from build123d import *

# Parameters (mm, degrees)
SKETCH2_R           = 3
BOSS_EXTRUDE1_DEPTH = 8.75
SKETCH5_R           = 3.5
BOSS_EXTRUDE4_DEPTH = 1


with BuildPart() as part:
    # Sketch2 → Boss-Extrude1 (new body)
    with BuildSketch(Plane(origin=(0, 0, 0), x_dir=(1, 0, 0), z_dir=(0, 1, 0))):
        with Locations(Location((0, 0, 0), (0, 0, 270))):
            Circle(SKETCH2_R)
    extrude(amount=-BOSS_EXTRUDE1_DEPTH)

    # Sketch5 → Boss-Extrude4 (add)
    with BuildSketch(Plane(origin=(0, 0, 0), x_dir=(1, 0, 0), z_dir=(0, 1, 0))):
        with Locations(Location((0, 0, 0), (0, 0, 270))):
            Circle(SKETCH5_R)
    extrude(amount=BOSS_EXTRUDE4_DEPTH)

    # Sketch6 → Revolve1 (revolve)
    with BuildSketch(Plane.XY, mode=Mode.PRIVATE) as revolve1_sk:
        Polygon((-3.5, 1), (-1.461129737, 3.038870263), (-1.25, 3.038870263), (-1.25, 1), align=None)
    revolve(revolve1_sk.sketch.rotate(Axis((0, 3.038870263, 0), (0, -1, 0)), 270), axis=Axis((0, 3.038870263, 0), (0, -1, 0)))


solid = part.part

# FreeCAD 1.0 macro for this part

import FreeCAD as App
import Part
import Sketcher
Q = App.Units.Quantity


def add_polygon(sketch, points):
    """Adds a closed chain of lines whose ends are joined by coincident constraints."""
    first, n = sketch.GeometryCount, len(points)
    for a, b in zip(points, points[1:] + points[:1]):
        sketch.addGeometry(Part.LineSegment(App.Vector(*a, 0), App.Vector(*b, 0)), False)
    for i in range(n):
        sketch.addConstraint(Sketcher.Constraint("Coincident", first + i, 2, first + (i + 1) % n, 1))

doc = App.newDocument("Part")
body = doc.addObject("PartDesign::Body", "Body")

# Sketch on XZ plane
sketch1 = body.newObject("Sketcher::SketchObject", "Sketch")
sketch1.AttachmentSupport = (doc.getObject("XZ_Plane"), [""])
sketch1.MapMode = "FlatFace"
sketch1.addGeometry(Part.Circle(App.Vector(0, 0, 0), App.Vector(0, 0, 1), 3), False)
sketch1.addConstraint(Sketcher.Constraint("Coincident", 0, 3, -1, 1))
sketch1.addConstraint(Sketcher.Constraint("Diameter", 0, 6.0))
pad1 = body.newObject("PartDesign::Pad", "Pad")
pad1.Profile = sketch1
pad1.Length = 8.75

# Sketch on XZ plane
sketch2 = body.newObject("Sketcher::SketchObject", "Sketch001")
sketch2.AttachmentSupport = (doc.getObject("XZ_Plane"), [""])
sketch2.MapMode = "FlatFace"
sketch2.addGeometry(Part.Circle(App.Vector(0, 0, 0), App.Vector(0, 0, 1), 3.5), False)
sketch2.addConstraint(Sketcher.Constraint("Coincident", 0, 3, -1, 1))
sketch2.addConstraint(Sketcher.Constraint("Diameter", 0, 7.0))
pad2 = body.newObject("PartDesign::Pad", "Pad001")
pad2.Profile = sketch2
pad2.Length = 1
pad2.Reversed = True

# Sketch on XY plane
sketch3 = body.newObject("Sketcher::SketchObject", "Sketch002")
sketch3.AttachmentSupport = (doc.getObject("XY_Plane"), [""])
sketch3.MapMode = "FlatFace"
add_polygon(sketch3, [(-1.46, 3.04), (-3.5, 1), (-1.25, 1), (-1.25, 3.04)])  # lines 0-3
sketch3.addConstraint(Sketcher.Constraint("Horizontal", 1))
sketch3.addConstraint(Sketcher.Constraint("Vertical", 2))
sketch3.addConstraint(Sketcher.Constraint("Horizontal", 3))
sketch3.addConstraint(Sketcher.Constraint("Angle", 0, Q("-135 deg")))
sketch3.addConstraint(Sketcher.Constraint("DistanceY", -1, 1, 0, 2, 1.0))
sketch3.addConstraint(Sketcher.Constraint("DistanceX", 1, 1, 1, 2, 2.25))
sketch3.addConstraint(Sketcher.Constraint("DistanceX", 0, 2, -1, 1, 3.5))
sketch3.addConstraint(Sketcher.Constraint("DistanceX", 3, 2, 3, 1, 0.21113))
revolution = body.newObject("PartDesign::Revolution", "Revolution")
revolution.Profile = sketch3
revolution.ReferenceAxis = (sketch3, ["V_Axis"])
revolution.Angle = 360

doc.recompute()
